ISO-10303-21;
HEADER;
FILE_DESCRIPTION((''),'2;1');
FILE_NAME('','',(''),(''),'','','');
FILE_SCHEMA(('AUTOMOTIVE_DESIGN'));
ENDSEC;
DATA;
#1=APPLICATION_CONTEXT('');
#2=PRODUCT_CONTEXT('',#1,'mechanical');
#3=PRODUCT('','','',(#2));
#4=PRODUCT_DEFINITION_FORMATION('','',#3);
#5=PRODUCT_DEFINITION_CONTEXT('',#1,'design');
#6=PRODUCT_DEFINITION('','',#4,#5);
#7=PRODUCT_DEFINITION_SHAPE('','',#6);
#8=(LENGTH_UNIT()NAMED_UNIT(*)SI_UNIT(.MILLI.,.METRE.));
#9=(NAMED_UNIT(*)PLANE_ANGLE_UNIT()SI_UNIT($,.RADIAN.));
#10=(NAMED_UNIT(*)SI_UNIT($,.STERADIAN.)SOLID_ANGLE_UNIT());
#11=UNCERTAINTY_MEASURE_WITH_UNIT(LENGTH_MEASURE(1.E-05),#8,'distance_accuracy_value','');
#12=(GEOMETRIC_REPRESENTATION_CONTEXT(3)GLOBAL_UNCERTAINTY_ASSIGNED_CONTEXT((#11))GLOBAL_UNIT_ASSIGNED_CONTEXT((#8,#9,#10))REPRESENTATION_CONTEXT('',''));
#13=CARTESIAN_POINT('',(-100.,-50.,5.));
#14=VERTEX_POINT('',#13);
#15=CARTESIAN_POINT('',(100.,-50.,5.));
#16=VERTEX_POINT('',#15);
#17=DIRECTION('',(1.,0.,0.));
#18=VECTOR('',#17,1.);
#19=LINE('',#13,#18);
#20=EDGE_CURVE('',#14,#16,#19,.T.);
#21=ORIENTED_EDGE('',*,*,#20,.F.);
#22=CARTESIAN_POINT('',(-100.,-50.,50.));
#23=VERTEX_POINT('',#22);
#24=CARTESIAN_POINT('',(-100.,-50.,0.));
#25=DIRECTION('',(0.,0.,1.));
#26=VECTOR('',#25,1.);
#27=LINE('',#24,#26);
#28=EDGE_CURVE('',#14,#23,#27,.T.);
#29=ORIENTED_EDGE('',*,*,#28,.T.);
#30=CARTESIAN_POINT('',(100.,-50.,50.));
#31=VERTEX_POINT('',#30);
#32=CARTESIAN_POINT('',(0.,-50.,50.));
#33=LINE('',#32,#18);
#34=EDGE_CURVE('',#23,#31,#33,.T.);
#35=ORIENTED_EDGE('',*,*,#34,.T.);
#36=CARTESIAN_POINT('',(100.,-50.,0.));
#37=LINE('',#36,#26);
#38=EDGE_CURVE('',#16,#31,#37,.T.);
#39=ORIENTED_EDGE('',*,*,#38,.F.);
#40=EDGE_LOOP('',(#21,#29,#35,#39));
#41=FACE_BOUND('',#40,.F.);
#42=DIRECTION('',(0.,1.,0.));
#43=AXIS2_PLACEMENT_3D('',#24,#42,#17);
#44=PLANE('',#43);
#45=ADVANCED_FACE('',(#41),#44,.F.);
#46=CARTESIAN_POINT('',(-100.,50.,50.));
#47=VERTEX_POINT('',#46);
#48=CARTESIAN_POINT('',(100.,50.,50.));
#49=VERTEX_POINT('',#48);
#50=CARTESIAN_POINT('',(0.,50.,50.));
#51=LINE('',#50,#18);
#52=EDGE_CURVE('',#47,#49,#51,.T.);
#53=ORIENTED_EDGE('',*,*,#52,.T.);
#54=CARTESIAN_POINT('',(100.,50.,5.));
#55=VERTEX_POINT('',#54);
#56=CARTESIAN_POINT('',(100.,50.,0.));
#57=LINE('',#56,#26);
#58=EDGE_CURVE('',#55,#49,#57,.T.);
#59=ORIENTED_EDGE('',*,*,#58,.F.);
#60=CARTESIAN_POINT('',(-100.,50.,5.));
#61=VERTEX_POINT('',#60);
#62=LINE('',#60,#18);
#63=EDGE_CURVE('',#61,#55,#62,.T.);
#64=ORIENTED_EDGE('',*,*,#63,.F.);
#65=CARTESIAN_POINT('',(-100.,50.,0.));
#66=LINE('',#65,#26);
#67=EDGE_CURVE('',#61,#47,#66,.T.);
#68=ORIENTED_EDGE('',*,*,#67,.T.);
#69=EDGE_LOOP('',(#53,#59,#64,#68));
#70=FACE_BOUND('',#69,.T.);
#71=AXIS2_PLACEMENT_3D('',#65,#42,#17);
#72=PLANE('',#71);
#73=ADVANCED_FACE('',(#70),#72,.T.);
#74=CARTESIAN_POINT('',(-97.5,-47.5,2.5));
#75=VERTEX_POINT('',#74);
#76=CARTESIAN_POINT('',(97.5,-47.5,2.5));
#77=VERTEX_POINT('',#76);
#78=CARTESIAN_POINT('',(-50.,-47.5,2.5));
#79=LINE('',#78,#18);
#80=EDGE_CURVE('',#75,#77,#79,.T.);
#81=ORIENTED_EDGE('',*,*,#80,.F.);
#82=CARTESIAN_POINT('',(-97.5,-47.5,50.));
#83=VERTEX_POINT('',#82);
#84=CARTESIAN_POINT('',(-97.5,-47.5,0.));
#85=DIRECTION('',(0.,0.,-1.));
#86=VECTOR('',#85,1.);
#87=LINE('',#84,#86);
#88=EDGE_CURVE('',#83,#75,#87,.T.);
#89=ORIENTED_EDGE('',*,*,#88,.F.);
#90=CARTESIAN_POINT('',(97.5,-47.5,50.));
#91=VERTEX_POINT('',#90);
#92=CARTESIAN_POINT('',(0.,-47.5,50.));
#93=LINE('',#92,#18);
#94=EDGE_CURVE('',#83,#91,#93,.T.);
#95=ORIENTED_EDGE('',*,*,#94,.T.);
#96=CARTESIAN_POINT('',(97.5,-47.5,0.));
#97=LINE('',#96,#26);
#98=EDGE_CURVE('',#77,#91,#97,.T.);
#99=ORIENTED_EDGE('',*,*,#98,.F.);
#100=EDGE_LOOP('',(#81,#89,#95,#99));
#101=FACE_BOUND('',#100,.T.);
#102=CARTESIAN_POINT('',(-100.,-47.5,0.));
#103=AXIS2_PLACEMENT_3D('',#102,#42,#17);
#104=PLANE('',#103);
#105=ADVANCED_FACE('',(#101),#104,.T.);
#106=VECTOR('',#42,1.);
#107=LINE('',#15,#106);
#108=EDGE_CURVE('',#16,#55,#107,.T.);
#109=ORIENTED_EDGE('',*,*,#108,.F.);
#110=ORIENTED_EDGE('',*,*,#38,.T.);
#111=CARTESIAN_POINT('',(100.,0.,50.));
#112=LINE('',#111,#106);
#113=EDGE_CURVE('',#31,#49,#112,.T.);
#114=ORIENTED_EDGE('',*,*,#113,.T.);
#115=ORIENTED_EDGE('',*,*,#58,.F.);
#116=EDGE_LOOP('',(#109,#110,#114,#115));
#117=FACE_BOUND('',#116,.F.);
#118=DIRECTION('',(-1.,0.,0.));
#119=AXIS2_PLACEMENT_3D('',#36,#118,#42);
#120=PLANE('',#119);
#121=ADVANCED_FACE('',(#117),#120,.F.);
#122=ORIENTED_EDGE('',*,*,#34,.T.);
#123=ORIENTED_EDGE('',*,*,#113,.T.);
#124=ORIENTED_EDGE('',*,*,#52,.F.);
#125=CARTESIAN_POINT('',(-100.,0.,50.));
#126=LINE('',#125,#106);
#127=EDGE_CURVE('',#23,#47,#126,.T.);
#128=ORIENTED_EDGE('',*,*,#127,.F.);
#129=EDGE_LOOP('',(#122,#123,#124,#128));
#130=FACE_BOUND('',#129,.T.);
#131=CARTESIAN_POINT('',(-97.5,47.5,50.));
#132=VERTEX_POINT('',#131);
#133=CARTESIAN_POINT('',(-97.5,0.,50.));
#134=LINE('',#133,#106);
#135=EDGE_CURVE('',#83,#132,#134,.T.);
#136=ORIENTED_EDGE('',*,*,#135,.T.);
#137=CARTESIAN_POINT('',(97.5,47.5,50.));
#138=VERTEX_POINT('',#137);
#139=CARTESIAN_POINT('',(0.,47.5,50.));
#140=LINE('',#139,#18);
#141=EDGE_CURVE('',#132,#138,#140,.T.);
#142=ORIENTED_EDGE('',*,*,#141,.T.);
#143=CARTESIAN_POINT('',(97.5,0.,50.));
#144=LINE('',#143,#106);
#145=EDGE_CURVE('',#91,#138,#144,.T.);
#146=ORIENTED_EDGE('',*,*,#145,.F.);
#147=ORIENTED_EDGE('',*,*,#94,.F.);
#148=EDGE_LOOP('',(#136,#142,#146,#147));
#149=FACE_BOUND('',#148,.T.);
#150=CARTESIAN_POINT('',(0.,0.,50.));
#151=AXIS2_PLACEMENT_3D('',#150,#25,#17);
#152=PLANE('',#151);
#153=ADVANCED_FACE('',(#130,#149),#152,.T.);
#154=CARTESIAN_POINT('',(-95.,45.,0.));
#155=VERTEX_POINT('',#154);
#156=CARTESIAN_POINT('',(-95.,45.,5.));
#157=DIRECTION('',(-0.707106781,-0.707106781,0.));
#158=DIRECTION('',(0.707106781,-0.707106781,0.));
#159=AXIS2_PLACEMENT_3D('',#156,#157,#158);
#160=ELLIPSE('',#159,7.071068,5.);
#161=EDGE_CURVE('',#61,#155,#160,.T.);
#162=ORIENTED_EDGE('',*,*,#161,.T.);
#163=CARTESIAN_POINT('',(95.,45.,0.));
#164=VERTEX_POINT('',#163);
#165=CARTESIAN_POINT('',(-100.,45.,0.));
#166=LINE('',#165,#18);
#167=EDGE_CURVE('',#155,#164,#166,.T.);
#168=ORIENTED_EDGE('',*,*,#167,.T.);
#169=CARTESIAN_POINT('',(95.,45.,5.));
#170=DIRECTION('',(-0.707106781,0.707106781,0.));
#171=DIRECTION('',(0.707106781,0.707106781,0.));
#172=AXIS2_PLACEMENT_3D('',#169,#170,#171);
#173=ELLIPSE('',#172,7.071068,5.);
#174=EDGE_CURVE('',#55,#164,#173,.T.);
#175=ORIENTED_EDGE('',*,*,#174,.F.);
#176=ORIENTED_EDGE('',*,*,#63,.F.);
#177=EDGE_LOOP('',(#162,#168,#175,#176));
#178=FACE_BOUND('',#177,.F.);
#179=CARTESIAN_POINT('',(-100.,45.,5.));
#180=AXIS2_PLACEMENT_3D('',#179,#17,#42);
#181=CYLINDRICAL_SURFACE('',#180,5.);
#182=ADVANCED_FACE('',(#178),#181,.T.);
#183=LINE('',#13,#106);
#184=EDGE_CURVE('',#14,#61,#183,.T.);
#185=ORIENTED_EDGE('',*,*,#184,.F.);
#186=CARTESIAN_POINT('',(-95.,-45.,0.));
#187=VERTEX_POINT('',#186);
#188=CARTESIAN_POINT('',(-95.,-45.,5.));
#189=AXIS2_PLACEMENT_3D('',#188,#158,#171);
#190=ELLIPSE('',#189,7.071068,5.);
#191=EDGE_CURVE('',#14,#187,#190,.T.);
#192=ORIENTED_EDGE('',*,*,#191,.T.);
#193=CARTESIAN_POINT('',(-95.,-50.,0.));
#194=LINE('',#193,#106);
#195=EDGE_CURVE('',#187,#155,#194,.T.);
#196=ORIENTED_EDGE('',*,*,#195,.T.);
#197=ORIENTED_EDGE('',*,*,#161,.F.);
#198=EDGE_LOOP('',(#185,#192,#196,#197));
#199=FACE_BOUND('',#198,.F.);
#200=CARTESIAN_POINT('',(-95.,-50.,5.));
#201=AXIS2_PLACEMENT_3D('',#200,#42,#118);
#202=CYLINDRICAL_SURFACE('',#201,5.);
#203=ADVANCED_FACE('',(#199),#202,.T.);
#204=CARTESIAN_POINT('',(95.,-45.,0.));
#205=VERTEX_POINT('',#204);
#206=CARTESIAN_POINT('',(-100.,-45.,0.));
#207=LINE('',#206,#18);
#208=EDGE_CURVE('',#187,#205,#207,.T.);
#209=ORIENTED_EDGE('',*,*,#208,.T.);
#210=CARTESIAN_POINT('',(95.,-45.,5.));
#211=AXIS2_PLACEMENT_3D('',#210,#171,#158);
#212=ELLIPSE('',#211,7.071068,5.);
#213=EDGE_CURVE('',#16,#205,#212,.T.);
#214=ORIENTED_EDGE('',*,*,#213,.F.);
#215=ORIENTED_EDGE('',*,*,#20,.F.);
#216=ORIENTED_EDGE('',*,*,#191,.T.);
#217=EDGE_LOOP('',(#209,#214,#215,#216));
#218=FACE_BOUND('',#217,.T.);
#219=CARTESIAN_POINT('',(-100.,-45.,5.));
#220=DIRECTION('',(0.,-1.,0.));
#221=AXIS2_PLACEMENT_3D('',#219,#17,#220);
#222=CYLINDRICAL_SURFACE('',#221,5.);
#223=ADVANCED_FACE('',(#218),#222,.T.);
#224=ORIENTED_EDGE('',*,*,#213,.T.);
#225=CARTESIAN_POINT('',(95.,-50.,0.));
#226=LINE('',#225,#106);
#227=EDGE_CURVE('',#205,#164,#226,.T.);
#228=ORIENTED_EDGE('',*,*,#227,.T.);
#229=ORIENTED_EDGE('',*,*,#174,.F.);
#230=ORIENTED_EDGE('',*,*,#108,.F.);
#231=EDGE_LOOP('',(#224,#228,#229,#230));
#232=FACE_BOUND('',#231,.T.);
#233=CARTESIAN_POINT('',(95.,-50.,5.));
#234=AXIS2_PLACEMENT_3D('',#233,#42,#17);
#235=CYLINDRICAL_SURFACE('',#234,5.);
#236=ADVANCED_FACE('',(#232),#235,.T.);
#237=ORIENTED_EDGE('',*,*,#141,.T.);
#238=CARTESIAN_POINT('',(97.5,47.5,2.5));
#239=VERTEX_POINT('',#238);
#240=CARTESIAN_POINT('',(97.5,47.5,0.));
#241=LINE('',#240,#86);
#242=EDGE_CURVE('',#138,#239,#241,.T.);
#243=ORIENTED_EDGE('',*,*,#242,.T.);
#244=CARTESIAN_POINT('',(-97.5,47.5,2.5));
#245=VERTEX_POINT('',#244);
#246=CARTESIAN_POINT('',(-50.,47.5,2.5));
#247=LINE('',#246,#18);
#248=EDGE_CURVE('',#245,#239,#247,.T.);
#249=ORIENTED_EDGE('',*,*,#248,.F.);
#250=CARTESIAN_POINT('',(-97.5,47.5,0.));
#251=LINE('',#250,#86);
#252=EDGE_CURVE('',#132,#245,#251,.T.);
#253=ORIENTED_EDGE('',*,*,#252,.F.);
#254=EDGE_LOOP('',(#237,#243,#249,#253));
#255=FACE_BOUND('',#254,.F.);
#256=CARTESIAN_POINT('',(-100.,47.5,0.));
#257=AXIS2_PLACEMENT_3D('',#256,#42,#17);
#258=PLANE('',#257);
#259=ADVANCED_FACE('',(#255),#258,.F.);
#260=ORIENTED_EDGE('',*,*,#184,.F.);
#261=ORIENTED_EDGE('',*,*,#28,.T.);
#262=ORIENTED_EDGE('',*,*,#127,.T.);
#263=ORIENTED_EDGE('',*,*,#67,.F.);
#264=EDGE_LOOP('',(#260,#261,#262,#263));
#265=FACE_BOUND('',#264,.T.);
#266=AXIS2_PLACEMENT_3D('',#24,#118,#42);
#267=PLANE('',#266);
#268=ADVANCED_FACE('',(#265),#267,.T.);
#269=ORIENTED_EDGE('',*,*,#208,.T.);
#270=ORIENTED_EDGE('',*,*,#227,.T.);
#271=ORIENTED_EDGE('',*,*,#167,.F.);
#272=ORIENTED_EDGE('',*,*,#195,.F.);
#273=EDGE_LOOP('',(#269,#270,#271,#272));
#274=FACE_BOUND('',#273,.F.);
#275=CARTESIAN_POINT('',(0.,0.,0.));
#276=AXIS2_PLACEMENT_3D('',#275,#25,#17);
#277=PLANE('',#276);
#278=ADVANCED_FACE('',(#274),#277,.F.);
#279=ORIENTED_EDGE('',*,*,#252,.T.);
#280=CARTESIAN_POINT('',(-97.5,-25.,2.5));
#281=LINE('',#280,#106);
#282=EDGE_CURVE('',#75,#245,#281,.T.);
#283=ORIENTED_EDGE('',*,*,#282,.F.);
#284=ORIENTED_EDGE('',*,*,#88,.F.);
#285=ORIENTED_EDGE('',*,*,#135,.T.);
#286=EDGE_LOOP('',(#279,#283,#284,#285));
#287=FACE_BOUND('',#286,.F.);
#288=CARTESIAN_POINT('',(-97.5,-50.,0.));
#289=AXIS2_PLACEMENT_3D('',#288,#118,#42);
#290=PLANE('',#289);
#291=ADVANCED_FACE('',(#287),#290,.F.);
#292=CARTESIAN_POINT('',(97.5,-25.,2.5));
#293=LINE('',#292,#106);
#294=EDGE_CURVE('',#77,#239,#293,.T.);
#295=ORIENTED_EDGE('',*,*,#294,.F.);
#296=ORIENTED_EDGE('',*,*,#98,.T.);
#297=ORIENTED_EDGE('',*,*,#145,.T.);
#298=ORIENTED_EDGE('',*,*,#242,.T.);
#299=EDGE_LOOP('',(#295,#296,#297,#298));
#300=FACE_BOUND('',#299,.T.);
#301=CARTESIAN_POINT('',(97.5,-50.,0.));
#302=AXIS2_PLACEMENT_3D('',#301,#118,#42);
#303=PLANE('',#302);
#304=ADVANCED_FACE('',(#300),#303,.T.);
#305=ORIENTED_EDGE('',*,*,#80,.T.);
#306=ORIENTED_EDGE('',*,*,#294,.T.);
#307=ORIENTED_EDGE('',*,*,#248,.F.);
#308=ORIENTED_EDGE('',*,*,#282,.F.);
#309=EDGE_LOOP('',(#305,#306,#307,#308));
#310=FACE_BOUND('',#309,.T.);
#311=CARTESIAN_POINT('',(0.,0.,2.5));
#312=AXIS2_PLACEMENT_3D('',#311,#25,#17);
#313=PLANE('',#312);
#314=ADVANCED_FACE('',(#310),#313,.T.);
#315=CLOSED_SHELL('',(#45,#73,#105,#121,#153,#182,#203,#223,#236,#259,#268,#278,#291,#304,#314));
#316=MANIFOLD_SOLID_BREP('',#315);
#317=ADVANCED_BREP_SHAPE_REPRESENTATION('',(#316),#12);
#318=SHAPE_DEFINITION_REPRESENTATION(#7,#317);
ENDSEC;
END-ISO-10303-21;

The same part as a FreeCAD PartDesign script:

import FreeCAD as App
import Part
import Sketcher


def edges_at(feature, points):
    """Names of the edges that pass closest to the given points."""
    edges = feature.Shape.Edges
    near = lambda p: min(range(len(edges)), key=lambda i: edges[i].distToShape(Part.Vertex(*p))[0])
    return sorted({f"Edge{near(p) + 1}" for p in points})


def faces_at(feature, points):
    """Names of the faces that lie closest to the given points."""
    faces = feature.Shape.Faces
    near = lambda p: min(range(len(faces)), key=lambda i: faces[i].distToShape(Part.Vertex(*p))[0])
    return sorted({f"Face{near(p) + 1}" for p in points})


def add_polygon(sketch, points):
    """Adds a closed chain of lines whose ends are joined by coincident constraints."""
    first, n = sketch.GeometryCount, len(points)
    for a, b in zip(points, points[1:] + points[:1]):
        sketch.addGeometry(Part.LineSegment(App.Vector(*a, 0), App.Vector(*b, 0)), False)
    for i in range(n):
        sketch.addConstraint(Sketcher.Constraint("Coincident", first + i, 2, first + (i + 1) % n, 1))

doc = App.newDocument("Part")
body = doc.addObject("PartDesign::Body", "Body")

# Sketch on XY plane
sketch1 = body.newObject("Sketcher::SketchObject", "Sketch")
sketch1.AttachmentSupport = (doc.getObject("XY_Plane"), [""])
sketch1.MapMode = "FlatFace"
add_polygon(sketch1, [(-100, 50), (-100, -50), (100, -50), (100, 50)])  # lines 0-3
sketch1.addConstraint([
    Sketcher.Constraint("Vertical", 0),
    Sketcher.Constraint("Horizontal", 1),
    Sketcher.Constraint("Vertical", 2),
    Sketcher.Constraint("Horizontal", 3),
    Sketcher.Constraint("Symmetric", 0, 2, 2, 2, -1, 1),
    Sketcher.Constraint("DistanceX", 1, 1, 1, 2, 200.0),
    Sketcher.Constraint("DistanceY", 0, 2, 0, 1, 100.0),
])
pad1 = body.newObject("PartDesign::Pad", "Pad")
pad1.Profile = sketch1
pad1.Length = 50
doc.recompute()

thickness = body.newObject("PartDesign::Thickness", "Thickness")
thickness.Base = (pad1, faces_at(pad1, [(0, 0, 50)]))
thickness.Value = 2.5
thickness.Reversed = True
thickness.Join = "Arc"
doc.recompute()

fillet = body.newObject("PartDesign::Fillet", "Fillet")
fillet.Base = (thickness, edges_at(thickness, [
    (0, -50, 0),
    (100, 0, 0),
    (0, 50, 0),
    (-100, 0, 0),
]))
fillet.Radius = 5

doc.recompute()
